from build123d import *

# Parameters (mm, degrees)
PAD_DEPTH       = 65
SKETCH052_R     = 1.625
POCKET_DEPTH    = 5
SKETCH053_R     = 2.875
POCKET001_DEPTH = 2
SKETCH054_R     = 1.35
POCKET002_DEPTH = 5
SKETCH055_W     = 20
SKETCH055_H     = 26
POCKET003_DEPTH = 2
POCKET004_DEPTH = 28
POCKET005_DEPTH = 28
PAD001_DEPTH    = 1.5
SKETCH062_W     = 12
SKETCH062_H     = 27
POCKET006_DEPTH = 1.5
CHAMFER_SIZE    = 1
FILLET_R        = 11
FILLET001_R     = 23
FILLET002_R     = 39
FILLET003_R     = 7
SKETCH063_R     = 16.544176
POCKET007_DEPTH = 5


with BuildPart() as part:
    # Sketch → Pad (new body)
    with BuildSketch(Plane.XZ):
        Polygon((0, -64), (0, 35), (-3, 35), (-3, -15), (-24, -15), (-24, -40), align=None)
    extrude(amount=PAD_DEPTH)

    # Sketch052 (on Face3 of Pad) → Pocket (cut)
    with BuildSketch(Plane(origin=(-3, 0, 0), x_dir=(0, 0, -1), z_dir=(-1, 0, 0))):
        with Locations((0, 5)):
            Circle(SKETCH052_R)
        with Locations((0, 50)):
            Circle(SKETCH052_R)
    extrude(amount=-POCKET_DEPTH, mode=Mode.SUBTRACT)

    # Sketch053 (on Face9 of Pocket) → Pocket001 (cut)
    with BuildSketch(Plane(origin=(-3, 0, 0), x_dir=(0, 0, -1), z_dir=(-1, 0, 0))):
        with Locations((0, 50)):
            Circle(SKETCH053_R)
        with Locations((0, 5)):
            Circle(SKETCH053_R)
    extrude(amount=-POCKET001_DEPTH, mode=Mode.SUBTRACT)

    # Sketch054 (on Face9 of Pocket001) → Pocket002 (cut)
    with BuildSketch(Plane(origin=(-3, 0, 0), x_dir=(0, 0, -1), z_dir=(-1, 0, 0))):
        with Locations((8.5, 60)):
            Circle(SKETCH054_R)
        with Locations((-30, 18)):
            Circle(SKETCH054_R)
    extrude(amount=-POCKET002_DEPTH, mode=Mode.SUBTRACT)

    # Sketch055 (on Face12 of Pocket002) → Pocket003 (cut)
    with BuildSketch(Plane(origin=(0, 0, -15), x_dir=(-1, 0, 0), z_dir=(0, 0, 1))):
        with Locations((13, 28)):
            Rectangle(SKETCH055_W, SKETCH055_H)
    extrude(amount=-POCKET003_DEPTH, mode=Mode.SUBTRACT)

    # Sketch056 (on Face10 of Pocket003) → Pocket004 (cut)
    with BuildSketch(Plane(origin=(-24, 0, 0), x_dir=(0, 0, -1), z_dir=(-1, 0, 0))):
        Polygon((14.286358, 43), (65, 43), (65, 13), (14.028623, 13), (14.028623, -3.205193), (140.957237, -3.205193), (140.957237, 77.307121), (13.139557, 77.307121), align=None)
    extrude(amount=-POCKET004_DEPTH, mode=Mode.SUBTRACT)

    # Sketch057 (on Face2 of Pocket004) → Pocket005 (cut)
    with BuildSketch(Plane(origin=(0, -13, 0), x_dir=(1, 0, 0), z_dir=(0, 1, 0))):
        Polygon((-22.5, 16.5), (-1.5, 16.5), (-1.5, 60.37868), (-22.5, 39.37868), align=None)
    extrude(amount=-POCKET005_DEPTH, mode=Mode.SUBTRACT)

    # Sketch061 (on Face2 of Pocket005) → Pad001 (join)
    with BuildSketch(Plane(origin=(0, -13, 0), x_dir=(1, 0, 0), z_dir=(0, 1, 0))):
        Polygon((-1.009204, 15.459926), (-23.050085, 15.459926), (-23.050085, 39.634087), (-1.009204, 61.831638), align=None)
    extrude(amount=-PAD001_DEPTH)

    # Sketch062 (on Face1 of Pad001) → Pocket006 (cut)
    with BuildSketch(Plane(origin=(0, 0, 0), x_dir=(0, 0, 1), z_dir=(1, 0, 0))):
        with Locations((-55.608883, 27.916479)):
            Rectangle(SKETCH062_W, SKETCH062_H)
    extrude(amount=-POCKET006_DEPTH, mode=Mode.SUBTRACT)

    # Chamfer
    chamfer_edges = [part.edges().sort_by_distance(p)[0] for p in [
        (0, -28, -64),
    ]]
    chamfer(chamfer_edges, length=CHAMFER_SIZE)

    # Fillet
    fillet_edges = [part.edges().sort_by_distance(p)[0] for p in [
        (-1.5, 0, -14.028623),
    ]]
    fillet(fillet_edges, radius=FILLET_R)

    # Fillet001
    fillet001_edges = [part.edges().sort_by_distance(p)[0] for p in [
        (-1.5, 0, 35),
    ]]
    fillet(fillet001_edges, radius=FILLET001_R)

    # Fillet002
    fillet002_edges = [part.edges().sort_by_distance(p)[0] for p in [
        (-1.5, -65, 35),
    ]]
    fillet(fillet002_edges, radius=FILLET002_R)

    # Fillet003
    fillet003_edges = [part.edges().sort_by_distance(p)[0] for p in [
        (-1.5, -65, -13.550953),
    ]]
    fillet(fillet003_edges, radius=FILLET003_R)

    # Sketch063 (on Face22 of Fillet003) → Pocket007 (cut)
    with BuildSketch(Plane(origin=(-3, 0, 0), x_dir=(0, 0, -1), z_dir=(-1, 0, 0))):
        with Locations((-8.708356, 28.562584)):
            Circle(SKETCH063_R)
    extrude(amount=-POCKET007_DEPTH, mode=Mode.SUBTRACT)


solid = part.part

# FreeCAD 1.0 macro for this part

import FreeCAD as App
import Part
import Sketcher
Q = App.Units.Quantity


def edges_at(feature, points):
    """Names of the edges that pass closest to the given points."""
    edges = feature.Shape.Edges
    near = lambda p: min(range(len(edges)), key=lambda i: edges[i].distToShape(Part.Vertex(*p))[0])
    return sorted({f"Edge{near(p) + 1}" for p in points})


def add_polygon(sketch, points):
    """Adds a closed chain of lines whose ends are joined by coincident constraints."""
    first, n = sketch.GeometryCount, len(points)
    for a, b in zip(points, points[1:] + points[:1]):
        sketch.addGeometry(Part.LineSegment(App.Vector(*a, 0), App.Vector(*b, 0)), False)
    for i in range(n):
        sketch.addConstraint(Sketcher.Constraint("Coincident", first + i, 2, first + (i + 1) % n, 1))

doc = App.newDocument("Part")
params = doc.addObject("Spreadsheet::Sheet", "Params")
for row, (alias, value) in enumerate([
    ("sketch1_width", "3 mm"),
    ("sketch1_width2", "21 mm"),
    ("sketch1_height", "99 mm"),
    ("sketch1_height2", "50 mm"),
    ("sketch1_height3", "25 mm"),
    ("pad1_length", "65 mm"),
    ("sketch2_diameter", "3.25 mm"),
    ("pocket1_length", "5 mm"),
    ("sketch3_diameter", "5.75 mm"),
    ("pocket2_length", "2 mm"),
    ("sketch4_diameter", "2.7 mm"),
    ("pocket3_length", "5 mm"),
    ("sketch5_width", "20 mm"),
    ("sketch5_height", "26 mm"),
    ("pocket4_length", "2 mm"),
    ("sketch6_width", "30 mm"),
    ("pocket5_length", "28 mm"),
    ("sketch7_width", "21 mm"),
    ("pocket6_length", "28 mm"),
    ("pad2_length", "1.5 mm"),
    ("sketch9_width", "27 mm"),
    ("sketch9_height", "12 mm"),
    ("pocket7_length", "1.5 mm"),
    ("chamfer_size", "1 mm"),
    ("fillet_radius", "11 mm"),
    ("fillet2_radius", "23 mm"),
    ("fillet3_radius", "39 mm"),
    ("fillet4_radius", "7 mm"),
    ("pocket8_length", "5 mm"),
], start=1):
    params.set(f"A{row}", alias)
    params.set(f"B{row}", "=" + value)
    params.setAlias(f"B{row}", alias)

body = doc.addObject("PartDesign::Body", "Body")

# Sketch on XZ plane
sketch1 = doc.addObject("Sketcher::SketchObject", "Sketch")
body.addObject(sketch1)
sketch1.AttachmentSupport = (doc.XZ_Plane, [""])
sketch1.MapMode = "FlatFace"
add_polygon(sketch1, [(0, -64), (0, 35), (-3, 35), (-3, -15), (-24, -15), (-24, -40)])  # lines 0-5
sketch1.addConstraint([
    Sketcher.Constraint("Vertical", 0),
    Sketcher.Constraint("Horizontal", 1),
    Sketcher.Constraint("Vertical", 2),
    Sketcher.Constraint("Horizontal", 3),
    Sketcher.Constraint("Vertical", 4),
    Sketcher.Constraint("PointOnObject", 0, 2, -2),
    Sketcher.Constraint("DistanceX", 1, 2, 1, 1, 3.0),
    Sketcher.Constraint("DistanceX", 3, 2, 3, 1, 21.0),
    Sketcher.Constraint("DistanceY", 0, 1, 0, 2, 99.0),
    Sketcher.Constraint("DistanceY", 2, 2, 2, 1, 50.0),
    Sketcher.Constraint("DistanceY", 4, 2, 4, 1, 25.0),
    Sketcher.Constraint("DistanceY", -1, 1, 0, 2, 35.0),
])
sketch1.setExpression("Constraints[12]", "Params.sketch1_width")
sketch1.setExpression("Constraints[13]", "Params.sketch1_width2")
sketch1.setExpression("Constraints[14]", "Params.sketch1_height")
sketch1.setExpression("Constraints[15]", "Params.sketch1_height2")
sketch1.setExpression("Constraints[16]", "Params.sketch1_height3")
pad1 = doc.addObject("PartDesign::Pad", "Pad")
body.addObject(pad1)
pad1.Profile = sketch1
pad1.setExpression("Length", "Params.pad1_length")

# Sketch on YZ plane
sketch2 = doc.addObject("Sketcher::SketchObject", "Sketch001")
body.addObject(sketch2)
sketch2.AttachmentSupport = (doc.YZ_Plane, [""])
sketch2.MapMode = "FlatFace"
sketch2.AttachmentOffset = App.Placement(App.Vector(0, 0, -3), App.Rotation())
sketch2.addGeometry([
    Part.Circle(App.Vector(-5, 0, 0), App.Vector(0, 0, 1), 1.6),
    Part.Circle(App.Vector(-50, 0, 0), App.Vector(0, 0, 1), 1.6),
], False)
sketch2.addConstraint([
    Sketcher.Constraint("Equal", 0, 1),
    Sketcher.Constraint("PointOnObject", 0, 3, -1),
    Sketcher.Constraint("PointOnObject", 1, 3, -1),
    Sketcher.Constraint("Diameter", 0, 3.25),
    Sketcher.Constraint("DistanceX", 0, 3, -1, 1, 5.0),
    Sketcher.Constraint("DistanceX", 1, 3, -1, 1, 50.0),
])
sketch2.setExpression("Constraints[3]", "Params.sketch2_diameter")
pocket1 = doc.addObject("PartDesign::Pocket", "Pocket")
body.addObject(pocket1)
pocket1.Profile = sketch2
pocket1.setExpression("Length", "Params.pocket1_length")
pocket1.Reversed = True

# Sketch on YZ plane
sketch3 = doc.addObject("Sketcher::SketchObject", "Sketch002")
body.addObject(sketch3)
sketch3.AttachmentSupport = (doc.YZ_Plane, [""])
sketch3.MapMode = "FlatFace"
sketch3.AttachmentOffset = App.Placement(App.Vector(0, 0, -3), App.Rotation())
sketch3.addGeometry([
    Part.Circle(App.Vector(-50, 0, 0), App.Vector(0, 0, 1), 2.9),
    Part.Circle(App.Vector(-5, 0, 0), App.Vector(0, 0, 1), 2.9),
], False)
sketch3.addConstraint([
    Sketcher.Constraint("Equal", 0, 1),
    Sketcher.Constraint("PointOnObject", 0, 3, -1),
    Sketcher.Constraint("PointOnObject", 1, 3, -1),
    Sketcher.Constraint("Diameter", 0, 5.75),
    Sketcher.Constraint("DistanceX", 0, 3, -1, 1, 50.0),
    Sketcher.Constraint("DistanceX", 1, 3, -1, 1, 5.0),
])
sketch3.setExpression("Constraints[3]", "Params.sketch3_diameter")
pocket2 = doc.addObject("PartDesign::Pocket", "Pocket001")
body.addObject(pocket2)
pocket2.Profile = sketch3
pocket2.setExpression("Length", "Params.pocket2_length")
pocket2.Reversed = True

# Sketch on YZ plane
sketch4 = doc.addObject("Sketcher::SketchObject", "Sketch003")
body.addObject(sketch4)
sketch4.AttachmentSupport = (doc.YZ_Plane, [""])
sketch4.MapMode = "FlatFace"
sketch4.AttachmentOffset = App.Placement(App.Vector(0, 0, -3), App.Rotation())
sketch4.addGeometry([
    Part.Circle(App.Vector(-60, -8.5, 0), App.Vector(0, 0, 1), 1.4),
    Part.Circle(App.Vector(-18, 30, 0), App.Vector(0, 0, 1), 1.4),
], False)
sketch4.addConstraint([
    Sketcher.Constraint("Equal", 0, 1),
    Sketcher.Constraint("Diameter", 0, 2.7),
    Sketcher.Constraint("DistanceX", 0, 3, -1, 1, 60.0),
    Sketcher.Constraint("DistanceX", 1, 3, -1, 1, 18.0),
    Sketcher.Constraint("DistanceY", -1, 1, 1, 3, 30.0),
    Sketcher.Constraint("DistanceY", 0, 3, -1, 1, 8.5),
])
sketch4.setExpression("Constraints[1]", "Params.sketch4_diameter")
pocket3 = doc.addObject("PartDesign::Pocket", "Pocket002")
body.addObject(pocket3)
pocket3.Profile = sketch4
pocket3.setExpression("Length", "Params.pocket3_length")
pocket3.Reversed = True

# Sketch on XY plane
sketch5 = doc.addObject("Sketcher::SketchObject", "Sketch004")
body.addObject(sketch5)
sketch5.AttachmentSupport = (doc.XY_Plane, [""])
sketch5.MapMode = "FlatFace"
sketch5.AttachmentOffset = App.Placement(App.Vector(0, 0, -15), App.Rotation())
add_polygon(sketch5, [(-3, -41), (-3, -15), (-23, -15), (-23, -41)])  # lines 0-3
sketch5.addConstraint([
    Sketcher.Constraint("Vertical", 0),
    Sketcher.Constraint("Horizontal", 1),
    Sketcher.Constraint("Vertical", 2),
    Sketcher.Constraint("Horizontal", 3),
    Sketcher.Constraint("DistanceX", 1, 2, 1, 1, 20.0),
    Sketcher.Constraint("DistanceY", 0, 1, 0, 2, 26.0),
    Sketcher.Constraint("DistanceX", 0, 2, -1, 1, 3.0),
    Sketcher.Constraint("DistanceY", 0, 2, -1, 1, 15.0),
])
sketch5.setExpression("Constraints[8]", "Params.sketch5_width")
sketch5.setExpression("Constraints[9]", "Params.sketch5_height")
pocket4 = doc.addObject("PartDesign::Pocket", "Pocket003")
body.addObject(pocket4)
pocket4.Profile = sketch5
pocket4.setExpression("Length", "Params.pocket4_length")

# Sketch on YZ plane
sketch6 = doc.addObject("Sketcher::SketchObject", "Sketch005")
body.addObject(sketch6)
sketch6.AttachmentSupport = (doc.YZ_Plane, [""])
sketch6.MapMode = "FlatFace"
sketch6.AttachmentOffset = App.Placement(App.Vector(0, 0, -24), App.Rotation())
add_polygon(sketch6, [(-43, -14), (-43, -65), (-13, -65), (-13, -14), (3, -14), (3, -141), (-77, -141), (-77, -13)])  # lines 0-7
sketch6.addConstraint([
    Sketcher.Constraint("Vertical", 0),
    Sketcher.Constraint("Horizontal", 1),
    Sketcher.Constraint("Vertical", 2),
    Sketcher.Constraint("Horizontal", 3),
    Sketcher.Constraint("Vertical", 4),
    Sketcher.Constraint("Horizontal", 5),
    Sketcher.Constraint("Vertical", 6),
    Sketcher.Constraint("DistanceX", 1, 1, 1, 2, 30.0),
    Sketcher.Constraint("DistanceX", 0, 2, -1, 1, 43.0),
    Sketcher.Constraint("DistanceY", 0, 2, -1, 1, 65.0),
    Sketcher.Constraint("DistanceY", 6, 1, 6, 2, 127.81768),
    Sketcher.Constraint("DistanceY", 7, 2, 6, 2, 1.146801),
    Sketcher.Constraint("DistanceX", 3, 1, 3, 2, 16.205193),
    Sketcher.Constraint("DistanceX", 5, 2, 5, 1, 80.512314),
    Sketcher.Constraint("DistanceY", 0, 2, 0, 1, 50.713642),
    Sketcher.Constraint("DistanceY", 2, 1, 2, 2, 50.971377),
])
sketch6.setExpression("Constraints[15]", "Params.sketch6_width")
pocket5 = doc.addObject("PartDesign::Pocket", "Pocket004")
body.addObject(pocket5)
pocket5.Profile = sketch6
pocket5.setExpression("Length", "Params.pocket5_length")
pocket5.Reversed = True

# Sketch on XZ plane
sketch7 = doc.addObject("Sketcher::SketchObject", "Sketch006")
body.addObject(sketch7)
sketch7.AttachmentSupport = (doc.XZ_Plane, [""])
sketch7.MapMode = "FlatFace"
sketch7.AttachmentOffset = App.Placement(App.Vector(0, 0, 13), App.Rotation())
add_polygon(sketch7, [(-22, -16), (-2, -16), (-2, -60), (-22, -39)])  # lines 0-3
sketch7.addConstraint([
    Sketcher.Constraint("Horizontal", 0),
    Sketcher.Constraint("Vertical", 1),
    Sketcher.Constraint("Vertical", 3),
    Sketcher.Constraint("DistanceX", 0, 1, 0, 2, 21.0),
    Sketcher.Constraint("Angle", 2, Q("135 deg")),
    Sketcher.Constraint("DistanceX", 0, 2, -1, 1, 1.5),
    Sketcher.Constraint("DistanceY", 0, 2, -1, 1, 16.5),
    Sketcher.Constraint("DistanceY", 1, 2, 1, 1, 43.87868),
])
sketch7.setExpression("Constraints[7]", "Params.sketch7_width")
pocket6 = doc.addObject("PartDesign::Pocket", "Pocket005")
body.addObject(pocket6)
pocket6.Profile = sketch7
pocket6.setExpression("Length", "Params.pocket6_length")
pocket6.Reversed = True

# Sketch on XZ plane
sketch8 = doc.addObject("Sketcher::SketchObject", "Sketch007")
body.addObject(sketch8)
sketch8.AttachmentSupport = (doc.XZ_Plane, [""])
sketch8.MapMode = "FlatFace"
sketch8.AttachmentOffset = App.Placement(App.Vector(0, 0, 13), App.Rotation())
add_polygon(sketch8, [(-23, -15), (-1, -15), (-1, -62), (-23, -40)])  # lines 0-3
sketch8.addConstraint([
    Sketcher.Constraint("Horizontal", 0),
    Sketcher.Constraint("Vertical", 1),
    Sketcher.Constraint("Vertical", 3),
    Sketcher.Constraint("DistanceX", 0, 1, 0, 2, 22.040881),
    Sketcher.Constraint("DistanceY", 3, 1, 3, 2, 24.174161),
    Sketcher.Constraint("Distance", 2, 31.281491),
    Sketcher.Constraint("DistanceX", 0, 2, -1, 1, 1.009204),
    Sketcher.Constraint("DistanceY", 0, 2, -1, 1, 15.459926),
])
pad2 = doc.addObject("PartDesign::Pad", "Pad001")
body.addObject(pad2)
pad2.Profile = sketch8
pad2.setExpression("Length", "Params.pad2_length")

# Sketch on YZ plane
sketch9 = doc.addObject("Sketcher::SketchObject", "Sketch008")
body.addObject(sketch9)
sketch9.AttachmentSupport = (doc.YZ_Plane, [""])
sketch9.MapMode = "FlatFace"
add_polygon(sketch9, [(-41, -62), (-14, -62), (-14, -50), (-41, -50)])  # lines 0-3
sketch9.addConstraint([
    Sketcher.Constraint("Horizontal", 0),
    Sketcher.Constraint("Vertical", 1),
    Sketcher.Constraint("Horizontal", 2),
    Sketcher.Constraint("Vertical", 3),
    Sketcher.Constraint("DistanceX", 0, 1, 0, 2, 27.0),
    Sketcher.Constraint("DistanceY", 1, 1, 1, 2, 12.0),
    Sketcher.Constraint("DistanceX", 0, 2, -1, 1, 14.416479),
    Sketcher.Constraint("DistanceY", 0, 2, -1, 1, 61.608883),
])
sketch9.setExpression("Constraints[8]", "Params.sketch9_width")
sketch9.setExpression("Constraints[9]", "Params.sketch9_height")
pocket7 = doc.addObject("PartDesign::Pocket", "Pocket006")
body.addObject(pocket7)
pocket7.Profile = sketch9
pocket7.setExpression("Length", "Params.pocket7_length")
doc.recompute()

chamfer = doc.addObject("PartDesign::Chamfer", "Chamfer")
body.addObject(chamfer)
chamfer.Base = (pocket7, edges_at(pocket7, [(0, -28, -64)]))
chamfer.setExpression("Size", "Params.chamfer_size")
doc.recompute()

fillet = doc.addObject("PartDesign::Fillet", "Fillet")
body.addObject(fillet)
fillet.Base = (chamfer, edges_at(chamfer, [(-1.5, 0, -14.029)]))
fillet.setExpression("Radius", "Params.fillet_radius")
doc.recompute()

fillet2 = doc.addObject("PartDesign::Fillet", "Fillet001")
body.addObject(fillet2)
fillet2.Base = (fillet, edges_at(fillet, [(-1.5, 0, 35)]))
fillet2.setExpression("Radius", "Params.fillet2_radius")
doc.recompute()

fillet3 = doc.addObject("PartDesign::Fillet", "Fillet002")
body.addObject(fillet3)
fillet3.Base = (fillet2, edges_at(fillet2, [(-1.5, -65, 35)]))
fillet3.setExpression("Radius", "Params.fillet3_radius")
doc.recompute()

fillet4 = doc.addObject("PartDesign::Fillet", "Fillet003")
body.addObject(fillet4)
fillet4.Base = (fillet3, edges_at(fillet3, [(-1.5, -65, -13.551)]))
fillet4.setExpression("Radius", "Params.fillet4_radius")

# Sketch on YZ plane
sketch10 = doc.addObject("Sketcher::SketchObject", "Sketch009")
body.addObject(sketch10)
sketch10.AttachmentSupport = (doc.YZ_Plane, [""])
sketch10.MapMode = "FlatFace"
sketch10.AttachmentOffset = App.Placement(App.Vector(0, 0, -3), App.Rotation())
sketch10.addGeometry(Part.Circle(App.Vector(-29, 9, 0), App.Vector(0, 0, 1), 17), False)
sketch10.addConstraint([
    Sketcher.Constraint("Diameter", 0, 33.088352),
    Sketcher.Constraint("DistanceX", 0, 3, -1, 1, 28.562584),
    Sketcher.Constraint("DistanceY", -1, 1, 0, 3, 8.708356),
])
pocket8 = doc.addObject("PartDesign::Pocket", "Pocket007")
body.addObject(pocket8)
pocket8.Profile = sketch10
pocket8.setExpression("Length", "Params.pocket8_length")
pocket8.Reversed = True

doc.recompute()
